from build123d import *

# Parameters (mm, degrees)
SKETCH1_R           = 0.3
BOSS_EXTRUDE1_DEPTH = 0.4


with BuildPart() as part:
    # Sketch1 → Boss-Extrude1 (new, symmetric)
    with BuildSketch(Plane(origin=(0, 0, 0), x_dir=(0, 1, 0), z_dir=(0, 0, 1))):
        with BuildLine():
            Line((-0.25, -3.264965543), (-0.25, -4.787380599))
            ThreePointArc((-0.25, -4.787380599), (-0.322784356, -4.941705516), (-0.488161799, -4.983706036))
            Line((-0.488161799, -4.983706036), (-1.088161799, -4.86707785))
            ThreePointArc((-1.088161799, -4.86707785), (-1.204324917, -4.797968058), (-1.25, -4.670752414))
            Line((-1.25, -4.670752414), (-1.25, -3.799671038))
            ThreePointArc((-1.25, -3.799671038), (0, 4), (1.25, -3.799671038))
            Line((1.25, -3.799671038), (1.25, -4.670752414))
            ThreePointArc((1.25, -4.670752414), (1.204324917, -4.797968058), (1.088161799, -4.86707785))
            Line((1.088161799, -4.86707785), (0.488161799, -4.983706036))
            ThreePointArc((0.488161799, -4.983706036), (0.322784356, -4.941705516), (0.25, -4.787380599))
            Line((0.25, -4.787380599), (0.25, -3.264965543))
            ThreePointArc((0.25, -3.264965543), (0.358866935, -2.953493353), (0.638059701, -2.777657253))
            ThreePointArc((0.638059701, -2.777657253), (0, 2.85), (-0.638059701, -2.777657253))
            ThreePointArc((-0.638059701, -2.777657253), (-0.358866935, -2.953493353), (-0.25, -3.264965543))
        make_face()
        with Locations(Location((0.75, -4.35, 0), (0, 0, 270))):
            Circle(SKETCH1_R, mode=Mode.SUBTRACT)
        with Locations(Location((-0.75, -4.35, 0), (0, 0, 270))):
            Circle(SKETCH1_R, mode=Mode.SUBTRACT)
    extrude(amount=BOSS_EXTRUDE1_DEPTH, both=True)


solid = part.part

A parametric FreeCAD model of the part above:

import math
import FreeCAD as App
import Part
import Sketcher
Q = App.Units.Quantity

doc = App.newDocument("Part")
body = doc.addObject("PartDesign::Body", "Body")

# Sketch on XY plane
sketch1 = body.newObject("Sketcher::SketchObject", "Sketch")
sketch1.AttachmentSupport = (doc.getObject("XY_Plane"), [""])
sketch1.MapMode = "FlatFace"
sketch1.addGeometry([
    Part.LineSegment(App.Vector(4.79, -0.25, 0), App.Vector(3.26, -0.25, 0)),  # 0
    Part.ArcOfCircle(Part.Circle(App.Vector(3.26, -0.75, 0), App.Vector(0, 0, 1), 0.5), math.radians(90), math.radians(167)),  # 1
    Part.ArcOfCircle(Part.Circle(App.Vector(0, 0, 0), App.Vector(0, 0, 1), 2.85), math.radians(13), math.radians(347)),  # 2
    Part.ArcOfCircle(Part.Circle(App.Vector(3.26, 0.75, 0), App.Vector(0, 0, 1), 0.5), math.radians(-167), math.radians(-90)),  # 3
    Part.LineSegment(App.Vector(3.26, 0.25, 0), App.Vector(4.79, 0.25, 0)),  # 4
    Part.ArcOfCircle(Part.Circle(App.Vector(4.79, 0.45, 0), App.Vector(0, 0, 1), 0.2), math.radians(-90), math.radians(11)),  # 5
    Part.LineSegment(App.Vector(4.98, 0.49, 0), App.Vector(4.87, 1.09, 0)),  # 6
    Part.ArcOfCircle(Part.Circle(App.Vector(4.67, 1.05, 0), App.Vector(0, 0, 1), 0.2), math.radians(11), math.radians(90)),  # 7
    Part.LineSegment(App.Vector(4.67, 1.25, 0), App.Vector(3.8, 1.25, 0)),  # 8
    Part.ArcOfCircle(Part.Circle(App.Vector(0, 0, 0), App.Vector(0, 0, 1), 4), math.radians(18), math.radians(342)),  # 9
    Part.LineSegment(App.Vector(3.8, -1.25, 0), App.Vector(4.67, -1.25, 0)),  # 10
    Part.ArcOfCircle(Part.Circle(App.Vector(4.67, -1.05, 0), App.Vector(0, 0, 1), 0.2), math.radians(-90), math.radians(-11)),  # 11
    Part.LineSegment(App.Vector(4.87, -1.09, 0), App.Vector(4.98, -0.49, 0)),  # 12
    Part.ArcOfCircle(Part.Circle(App.Vector(4.79, -0.45, 0), App.Vector(0, 0, 1), 0.2), math.radians(-11), math.radians(90)),  # 13
    Part.Circle(App.Vector(4.35, 0.75, 0), App.Vector(0, 0, 1), 0.3),  # 14
    Part.Circle(App.Vector(4.35, -0.75, 0), App.Vector(0, 0, 1), 0.3),  # 15
], False)
sketch1.addConstraint([
    Sketcher.Constraint("Tangent", 0, 2, 1, 1),
    Sketcher.Constraint("Tangent", 1, 2, 2, 2),
    Sketcher.Constraint("Tangent", 2, 1, 3, 1),
    Sketcher.Constraint("Tangent", 3, 2, 4, 1),
    Sketcher.Constraint("Tangent", 4, 2, 5, 1),
    Sketcher.Constraint("Tangent", 5, 2, 6, 1),
    Sketcher.Constraint("Tangent", 6, 2, 7, 1),
    Sketcher.Constraint("Tangent", 7, 2, 8, 1),
    Sketcher.Constraint("Coincident", 8, 2, 9, 1),
    Sketcher.Constraint("Coincident", 9, 2, 10, 1),
    Sketcher.Constraint("Tangent", 10, 2, 11, 1),
    Sketcher.Constraint("Tangent", 11, 2, 12, 1),
    Sketcher.Constraint("Tangent", 12, 2, 13, 1),
    Sketcher.Constraint("Tangent", 13, 2, 0, 1),
    Sketcher.Constraint("Horizontal", 0),
    Sketcher.Constraint("Horizontal", 4),
    Sketcher.Constraint("Horizontal", 8),
    Sketcher.Constraint("Horizontal", 10),
    Sketcher.Constraint("Coincident", 2, 3, -1, 1),
    Sketcher.Constraint("Coincident", 9, 3, -1, 1),
    Sketcher.Constraint("Equal", 1, 3),
    Sketcher.Constraint("Equal", 5, 7),
    Sketcher.Constraint("Equal", 7, 11),
    Sketcher.Constraint("Equal", 11, 13),
    Sketcher.Constraint("Equal", 14, 15),
    Sketcher.Constraint("Symmetric", 7, 3, 11, 3, -1),
    Sketcher.Constraint("Symmetric", 5, 3, 13, 3, -1),
    Sketcher.Constraint("Symmetric", 14, 3, 15, 3, -1),
    Sketcher.Constraint("Horizontal", 3, 3, 14, 3),
    Sketcher.Constraint("Radius", 9, 4.0),
    Sketcher.Constraint("Diameter", 14, 0.6),
    Sketcher.Constraint("Radius", 1, 0.5),
    Sketcher.Constraint("Radius", 5, 0.2),
    Sketcher.Constraint("Angle", 6, Q("101 deg")),
    Sketcher.Constraint("Radius", 2, 2.85),
    Sketcher.Constraint("DistanceY", 0, 2, 3, 3, 1.0),
    Sketcher.Constraint("DistanceY", 9, 2, 0, 2, 1.0),
    Sketcher.Constraint("DistanceX", -1, 1, 14, 3, 4.35),
    Sketcher.Constraint("DistanceX", 8, 2, 8, 1, 0.871081),
])
pad1 = body.newObject("PartDesign::Pad", "Pad")
pad1.Profile = sketch1
pad1.Length = 0.8
pad1.Midplane = True

doc.recompute()
